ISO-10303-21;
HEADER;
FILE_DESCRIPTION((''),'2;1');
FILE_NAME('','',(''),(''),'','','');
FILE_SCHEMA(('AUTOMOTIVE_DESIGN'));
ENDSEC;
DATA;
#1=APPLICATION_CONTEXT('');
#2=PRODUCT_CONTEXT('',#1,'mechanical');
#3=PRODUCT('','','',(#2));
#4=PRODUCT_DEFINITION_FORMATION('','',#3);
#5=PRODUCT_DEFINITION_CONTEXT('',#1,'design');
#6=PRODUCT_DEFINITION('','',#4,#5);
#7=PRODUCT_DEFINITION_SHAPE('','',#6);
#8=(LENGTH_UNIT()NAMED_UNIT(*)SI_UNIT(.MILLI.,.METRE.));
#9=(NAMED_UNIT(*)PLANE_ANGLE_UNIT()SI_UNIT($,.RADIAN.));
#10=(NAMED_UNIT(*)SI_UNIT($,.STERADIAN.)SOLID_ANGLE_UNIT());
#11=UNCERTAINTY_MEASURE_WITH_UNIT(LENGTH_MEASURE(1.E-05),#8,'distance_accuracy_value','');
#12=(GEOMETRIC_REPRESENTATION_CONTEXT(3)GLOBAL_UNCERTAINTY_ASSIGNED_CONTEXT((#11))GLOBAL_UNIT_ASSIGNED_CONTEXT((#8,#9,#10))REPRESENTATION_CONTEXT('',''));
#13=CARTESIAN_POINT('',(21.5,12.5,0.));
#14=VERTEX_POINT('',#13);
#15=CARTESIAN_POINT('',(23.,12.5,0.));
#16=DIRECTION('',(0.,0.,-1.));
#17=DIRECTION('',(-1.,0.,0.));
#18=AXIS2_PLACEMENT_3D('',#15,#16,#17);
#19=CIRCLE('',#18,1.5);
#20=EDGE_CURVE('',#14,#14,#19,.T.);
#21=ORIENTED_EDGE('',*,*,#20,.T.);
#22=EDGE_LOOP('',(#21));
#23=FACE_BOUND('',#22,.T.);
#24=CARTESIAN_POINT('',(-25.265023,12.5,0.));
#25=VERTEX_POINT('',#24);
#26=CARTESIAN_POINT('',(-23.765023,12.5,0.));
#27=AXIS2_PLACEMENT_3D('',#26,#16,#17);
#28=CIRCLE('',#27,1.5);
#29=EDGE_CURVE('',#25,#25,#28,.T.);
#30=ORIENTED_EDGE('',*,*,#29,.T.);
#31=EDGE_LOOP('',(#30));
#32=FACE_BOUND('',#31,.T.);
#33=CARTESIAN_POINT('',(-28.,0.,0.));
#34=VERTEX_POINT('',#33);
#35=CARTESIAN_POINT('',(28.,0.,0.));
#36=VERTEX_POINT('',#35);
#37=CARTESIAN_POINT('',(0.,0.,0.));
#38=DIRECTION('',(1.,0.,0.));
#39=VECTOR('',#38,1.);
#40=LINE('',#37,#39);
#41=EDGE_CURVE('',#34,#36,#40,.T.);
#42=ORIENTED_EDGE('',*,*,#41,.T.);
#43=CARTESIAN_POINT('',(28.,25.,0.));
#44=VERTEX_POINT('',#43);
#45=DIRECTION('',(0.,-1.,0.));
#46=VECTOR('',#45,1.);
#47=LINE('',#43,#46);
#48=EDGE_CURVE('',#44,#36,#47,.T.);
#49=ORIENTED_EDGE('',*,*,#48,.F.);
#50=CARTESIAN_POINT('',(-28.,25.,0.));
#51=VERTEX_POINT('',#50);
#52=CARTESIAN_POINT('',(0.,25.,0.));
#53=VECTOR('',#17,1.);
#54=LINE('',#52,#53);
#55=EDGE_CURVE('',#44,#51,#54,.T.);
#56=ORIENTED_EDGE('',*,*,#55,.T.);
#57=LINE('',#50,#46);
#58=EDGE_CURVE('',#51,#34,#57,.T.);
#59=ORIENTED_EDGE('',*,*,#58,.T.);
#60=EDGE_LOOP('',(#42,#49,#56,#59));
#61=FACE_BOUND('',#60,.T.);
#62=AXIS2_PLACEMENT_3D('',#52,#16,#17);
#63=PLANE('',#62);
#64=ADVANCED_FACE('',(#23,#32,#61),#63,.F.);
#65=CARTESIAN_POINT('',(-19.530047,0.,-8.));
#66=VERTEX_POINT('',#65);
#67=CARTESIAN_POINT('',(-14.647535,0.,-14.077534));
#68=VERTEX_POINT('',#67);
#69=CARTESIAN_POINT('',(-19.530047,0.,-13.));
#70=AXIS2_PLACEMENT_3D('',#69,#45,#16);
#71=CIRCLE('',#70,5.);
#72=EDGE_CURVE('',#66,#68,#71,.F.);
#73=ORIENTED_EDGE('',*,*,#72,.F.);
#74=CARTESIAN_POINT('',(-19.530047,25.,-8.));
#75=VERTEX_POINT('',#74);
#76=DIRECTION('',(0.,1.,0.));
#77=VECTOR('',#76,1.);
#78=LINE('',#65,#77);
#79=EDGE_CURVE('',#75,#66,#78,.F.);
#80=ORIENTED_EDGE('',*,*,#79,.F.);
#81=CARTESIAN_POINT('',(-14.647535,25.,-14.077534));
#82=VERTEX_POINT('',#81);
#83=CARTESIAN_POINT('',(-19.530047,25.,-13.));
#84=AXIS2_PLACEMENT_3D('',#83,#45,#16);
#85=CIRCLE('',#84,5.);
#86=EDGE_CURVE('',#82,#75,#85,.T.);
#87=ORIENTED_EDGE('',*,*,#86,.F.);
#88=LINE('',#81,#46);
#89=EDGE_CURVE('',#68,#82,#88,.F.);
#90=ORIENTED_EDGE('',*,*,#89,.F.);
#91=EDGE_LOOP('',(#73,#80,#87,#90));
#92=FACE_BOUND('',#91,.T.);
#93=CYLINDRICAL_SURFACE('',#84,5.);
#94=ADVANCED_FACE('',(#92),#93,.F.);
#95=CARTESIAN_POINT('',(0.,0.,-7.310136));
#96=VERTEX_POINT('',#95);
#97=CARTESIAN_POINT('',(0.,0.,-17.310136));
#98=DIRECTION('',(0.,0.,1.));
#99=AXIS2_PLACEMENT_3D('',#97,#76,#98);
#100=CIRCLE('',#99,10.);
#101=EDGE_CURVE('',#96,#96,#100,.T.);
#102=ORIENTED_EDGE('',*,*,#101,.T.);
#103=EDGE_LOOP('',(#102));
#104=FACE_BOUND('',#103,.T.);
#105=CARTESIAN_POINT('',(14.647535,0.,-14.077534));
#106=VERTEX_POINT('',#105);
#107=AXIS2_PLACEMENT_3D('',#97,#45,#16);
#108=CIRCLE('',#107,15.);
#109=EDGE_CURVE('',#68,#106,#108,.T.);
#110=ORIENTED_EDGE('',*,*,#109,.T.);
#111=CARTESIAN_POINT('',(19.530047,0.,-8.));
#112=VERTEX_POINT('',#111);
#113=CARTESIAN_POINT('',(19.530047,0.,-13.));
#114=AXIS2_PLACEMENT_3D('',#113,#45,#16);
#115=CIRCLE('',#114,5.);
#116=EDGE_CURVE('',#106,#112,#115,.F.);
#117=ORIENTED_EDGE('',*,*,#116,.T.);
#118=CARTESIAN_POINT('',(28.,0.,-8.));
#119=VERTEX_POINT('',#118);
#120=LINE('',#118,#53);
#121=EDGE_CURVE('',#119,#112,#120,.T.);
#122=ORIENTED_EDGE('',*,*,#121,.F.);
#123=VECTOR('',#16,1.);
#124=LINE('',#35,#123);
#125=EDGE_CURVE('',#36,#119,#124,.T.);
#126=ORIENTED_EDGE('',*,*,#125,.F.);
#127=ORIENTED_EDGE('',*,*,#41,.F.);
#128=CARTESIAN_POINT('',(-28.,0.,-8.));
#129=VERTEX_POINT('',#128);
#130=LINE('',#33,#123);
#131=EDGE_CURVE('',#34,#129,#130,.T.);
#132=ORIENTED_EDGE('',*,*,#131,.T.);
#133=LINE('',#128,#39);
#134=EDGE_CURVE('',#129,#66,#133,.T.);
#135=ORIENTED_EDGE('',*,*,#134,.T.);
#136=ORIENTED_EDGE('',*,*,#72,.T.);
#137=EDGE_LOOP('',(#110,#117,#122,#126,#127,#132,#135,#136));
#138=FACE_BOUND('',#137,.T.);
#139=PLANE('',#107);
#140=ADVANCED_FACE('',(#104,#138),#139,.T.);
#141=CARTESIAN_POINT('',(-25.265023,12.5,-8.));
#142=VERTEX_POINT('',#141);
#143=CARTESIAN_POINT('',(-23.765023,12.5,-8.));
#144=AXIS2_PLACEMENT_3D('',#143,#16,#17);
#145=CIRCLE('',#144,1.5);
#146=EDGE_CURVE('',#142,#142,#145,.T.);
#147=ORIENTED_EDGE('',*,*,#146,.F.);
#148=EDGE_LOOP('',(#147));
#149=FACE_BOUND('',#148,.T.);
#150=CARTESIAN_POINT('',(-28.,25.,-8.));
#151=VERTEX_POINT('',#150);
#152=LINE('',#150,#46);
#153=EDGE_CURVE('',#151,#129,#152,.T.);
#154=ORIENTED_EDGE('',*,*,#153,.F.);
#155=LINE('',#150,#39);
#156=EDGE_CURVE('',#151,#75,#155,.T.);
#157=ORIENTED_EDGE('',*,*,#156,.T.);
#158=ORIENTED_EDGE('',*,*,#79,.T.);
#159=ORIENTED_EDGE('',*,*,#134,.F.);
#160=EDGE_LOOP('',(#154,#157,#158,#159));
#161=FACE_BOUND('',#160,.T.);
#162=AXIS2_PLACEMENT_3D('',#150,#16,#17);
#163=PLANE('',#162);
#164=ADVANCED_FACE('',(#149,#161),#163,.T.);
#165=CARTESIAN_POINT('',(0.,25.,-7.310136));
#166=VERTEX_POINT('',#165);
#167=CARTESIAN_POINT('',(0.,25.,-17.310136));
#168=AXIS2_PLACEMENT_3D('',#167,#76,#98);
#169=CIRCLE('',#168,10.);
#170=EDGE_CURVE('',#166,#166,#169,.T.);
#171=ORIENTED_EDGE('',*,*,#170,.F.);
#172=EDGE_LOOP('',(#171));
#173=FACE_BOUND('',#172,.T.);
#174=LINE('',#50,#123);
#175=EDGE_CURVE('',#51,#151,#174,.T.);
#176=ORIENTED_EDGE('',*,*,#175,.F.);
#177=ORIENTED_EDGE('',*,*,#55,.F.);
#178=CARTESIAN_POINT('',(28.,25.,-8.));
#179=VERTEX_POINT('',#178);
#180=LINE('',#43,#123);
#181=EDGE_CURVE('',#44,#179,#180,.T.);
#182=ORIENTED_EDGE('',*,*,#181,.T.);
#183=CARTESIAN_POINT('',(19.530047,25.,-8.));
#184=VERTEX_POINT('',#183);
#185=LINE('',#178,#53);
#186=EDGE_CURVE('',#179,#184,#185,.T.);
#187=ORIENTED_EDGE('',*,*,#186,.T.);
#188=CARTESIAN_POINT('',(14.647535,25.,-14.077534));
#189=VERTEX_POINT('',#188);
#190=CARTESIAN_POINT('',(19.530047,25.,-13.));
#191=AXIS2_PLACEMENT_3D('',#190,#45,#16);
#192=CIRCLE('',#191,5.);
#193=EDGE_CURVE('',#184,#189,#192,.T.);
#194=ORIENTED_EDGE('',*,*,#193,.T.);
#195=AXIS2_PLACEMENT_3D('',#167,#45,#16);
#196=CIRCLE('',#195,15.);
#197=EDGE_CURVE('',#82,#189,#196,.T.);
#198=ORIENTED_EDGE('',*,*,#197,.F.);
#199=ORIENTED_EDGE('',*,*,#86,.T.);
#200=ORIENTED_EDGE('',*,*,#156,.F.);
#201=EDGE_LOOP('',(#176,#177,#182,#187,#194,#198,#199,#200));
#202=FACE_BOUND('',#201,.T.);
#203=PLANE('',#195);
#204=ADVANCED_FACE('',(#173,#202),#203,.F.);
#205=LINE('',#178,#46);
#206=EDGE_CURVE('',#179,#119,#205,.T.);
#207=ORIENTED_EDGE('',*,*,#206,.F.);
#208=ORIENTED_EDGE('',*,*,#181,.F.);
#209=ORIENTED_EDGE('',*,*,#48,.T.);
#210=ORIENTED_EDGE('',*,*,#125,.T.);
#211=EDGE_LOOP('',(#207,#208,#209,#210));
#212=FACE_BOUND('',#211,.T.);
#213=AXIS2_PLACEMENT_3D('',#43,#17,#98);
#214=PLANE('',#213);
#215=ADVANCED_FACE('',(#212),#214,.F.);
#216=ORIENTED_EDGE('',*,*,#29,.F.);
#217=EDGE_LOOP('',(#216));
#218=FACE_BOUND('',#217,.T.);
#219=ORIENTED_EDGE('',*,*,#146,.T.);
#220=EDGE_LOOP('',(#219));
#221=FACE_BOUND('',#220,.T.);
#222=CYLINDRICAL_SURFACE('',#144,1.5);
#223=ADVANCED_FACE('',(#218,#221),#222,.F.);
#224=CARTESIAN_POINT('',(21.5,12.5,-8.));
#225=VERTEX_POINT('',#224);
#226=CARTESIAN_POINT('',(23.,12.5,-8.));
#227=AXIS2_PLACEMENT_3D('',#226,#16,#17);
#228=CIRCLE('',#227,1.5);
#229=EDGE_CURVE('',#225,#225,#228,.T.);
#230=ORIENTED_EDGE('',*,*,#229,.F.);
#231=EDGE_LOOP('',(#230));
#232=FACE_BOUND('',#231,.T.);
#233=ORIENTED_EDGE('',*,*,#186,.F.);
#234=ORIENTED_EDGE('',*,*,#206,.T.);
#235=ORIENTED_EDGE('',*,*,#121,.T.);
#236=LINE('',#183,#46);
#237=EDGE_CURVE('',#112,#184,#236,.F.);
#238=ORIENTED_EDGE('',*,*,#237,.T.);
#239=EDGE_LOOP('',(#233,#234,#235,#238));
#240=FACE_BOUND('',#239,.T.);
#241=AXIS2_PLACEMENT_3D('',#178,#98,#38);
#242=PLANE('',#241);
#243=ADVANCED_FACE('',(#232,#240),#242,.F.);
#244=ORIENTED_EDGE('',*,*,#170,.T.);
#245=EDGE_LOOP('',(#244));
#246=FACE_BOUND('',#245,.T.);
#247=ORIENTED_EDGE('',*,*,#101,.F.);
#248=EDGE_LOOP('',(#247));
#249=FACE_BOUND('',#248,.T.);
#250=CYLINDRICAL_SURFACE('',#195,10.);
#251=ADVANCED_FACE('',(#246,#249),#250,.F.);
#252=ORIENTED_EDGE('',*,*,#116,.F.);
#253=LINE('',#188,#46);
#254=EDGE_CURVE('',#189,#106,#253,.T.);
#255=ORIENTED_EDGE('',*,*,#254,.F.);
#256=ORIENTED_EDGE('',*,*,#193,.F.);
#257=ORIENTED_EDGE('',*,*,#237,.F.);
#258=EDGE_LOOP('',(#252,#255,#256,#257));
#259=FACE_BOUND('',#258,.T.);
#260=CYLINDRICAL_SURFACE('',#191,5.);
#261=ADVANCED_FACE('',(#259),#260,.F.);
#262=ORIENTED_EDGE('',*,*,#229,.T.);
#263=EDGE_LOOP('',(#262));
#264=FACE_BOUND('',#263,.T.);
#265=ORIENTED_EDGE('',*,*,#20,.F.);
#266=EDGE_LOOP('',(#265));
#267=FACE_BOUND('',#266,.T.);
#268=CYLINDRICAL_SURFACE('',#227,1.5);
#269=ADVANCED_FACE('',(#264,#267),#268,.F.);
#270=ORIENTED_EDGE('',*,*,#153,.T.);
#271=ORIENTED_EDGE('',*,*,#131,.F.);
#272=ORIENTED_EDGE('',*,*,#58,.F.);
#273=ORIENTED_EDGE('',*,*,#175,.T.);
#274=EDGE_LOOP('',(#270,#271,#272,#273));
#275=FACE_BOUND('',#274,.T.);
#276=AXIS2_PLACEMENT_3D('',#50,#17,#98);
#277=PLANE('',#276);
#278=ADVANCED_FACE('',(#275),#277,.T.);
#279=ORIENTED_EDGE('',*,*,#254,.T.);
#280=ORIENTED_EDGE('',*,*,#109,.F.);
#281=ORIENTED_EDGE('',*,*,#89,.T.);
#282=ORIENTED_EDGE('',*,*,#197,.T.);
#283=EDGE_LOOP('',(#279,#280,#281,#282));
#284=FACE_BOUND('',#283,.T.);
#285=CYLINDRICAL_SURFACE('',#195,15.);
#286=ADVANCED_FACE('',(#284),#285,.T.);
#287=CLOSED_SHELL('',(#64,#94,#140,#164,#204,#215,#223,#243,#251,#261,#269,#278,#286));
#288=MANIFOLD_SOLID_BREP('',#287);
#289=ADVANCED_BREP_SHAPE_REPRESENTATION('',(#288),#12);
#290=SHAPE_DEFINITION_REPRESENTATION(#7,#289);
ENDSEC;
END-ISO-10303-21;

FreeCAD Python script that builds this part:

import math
import FreeCAD as App
import Part
import Sketcher
from FreeCAD import Vector


def edges_at(feature, points):
    """Names of the edges that pass closest to the given points."""
    edges = feature.Shape.Edges
    near = lambda p: min(range(len(edges)), key=lambda i: edges[i].distToShape(Part.Vertex(*p))[0])
    return sorted({f"Edge{near(p) + 1}" for p in points})

doc = App.newDocument("Part")
body = doc.addObject("PartDesign::Body", "Body")

sketch1 = body.newObject("Sketcher::SketchObject", "Sketch")
sketch1.AttachmentSupport = (doc.getObject("XZ_Plane"), [""])
sketch1.MapMode = "FlatFace"
sketch1.addGeometry(Part.LineSegment(Vector(-28, -8, 0), Vector(-28, 0, 0)), False)
sketch1.addGeometry(Part.LineSegment(Vector(-28, 0, 0), Vector(28, 0, 0)), False)
sketch1.addGeometry(Part.LineSegment(Vector(28, 0, 0), Vector(28, -8, 0)), False)
sketch1.addGeometry(Part.LineSegment(Vector(28, -8, 0), Vector(11.76101, -8, 0)), False)
sketch1.addGeometry(Part.ArcOfCircle(Part.Circle(Vector(0, -17.310136, 0), Vector(0, 0, 1), 15), math.radians(141.634502), math.radians(398.365498)), False)
sketch1.addGeometry(Part.LineSegment(Vector(-11.76101, -8, 0), Vector(-28, -8, 0)), False)
sketch1.addGeometry(Part.Circle(Vector(0, -17.310136, 0), Vector(0, 0, 1), 10), False)
sketch1.addConstraint(Sketcher.Constraint("Coincident", 0, 2, 1, 1))
sketch1.addConstraint(Sketcher.Constraint("Coincident", 1, 2, 2, 1))
sketch1.addConstraint(Sketcher.Constraint("Coincident", 2, 2, 3, 1))
sketch1.addConstraint(Sketcher.Constraint("Coincident", 3, 2, 4, 2))
sketch1.addConstraint(Sketcher.Constraint("Coincident", 4, 1, 5, 1))
sketch1.addConstraint(Sketcher.Constraint("Coincident", 5, 2, 0, 1))
sketch1.addConstraint(Sketcher.Constraint("Vertical", 0))
sketch1.addConstraint(Sketcher.Constraint("Horizontal", 1))
sketch1.addConstraint(Sketcher.Constraint("Vertical", 2))
sketch1.addConstraint(Sketcher.Constraint("Horizontal", 3))
sketch1.addConstraint(Sketcher.Constraint("Horizontal", 5))
sketch1.addConstraint(Sketcher.Constraint("Coincident", 6, 3, 4, 3))
sketch1.addConstraint(Sketcher.Constraint("Symmetric", 0, 2, 1, 2, -1, 1))
sketch1.addConstraint(Sketcher.Constraint("Symmetric", 3, 2, 4, 1, -2))
sketch1.addConstraint(Sketcher.Constraint("Diameter", 6, 20.0))
sketch1.addConstraint(Sketcher.Constraint("Radius", 4, 15.0))
sketch1.addConstraint(Sketcher.Constraint("DistanceX", 1, 1, 1, 2, 56.0))
sketch1.addConstraint(Sketcher.Constraint("DistanceY", 0, 1, 0, 2, 8.0))
sketch1.addConstraint(Sketcher.Constraint("DistanceX", 3, 2, 3, 1, 16.23899))
pad1 = body.newObject("PartDesign::Pad", "Pad")
pad1.Profile = sketch1
pad1.Length = 25
pad1.Reversed = True
doc.recompute()

fillet = body.newObject("PartDesign::Fillet", "Fillet")
fillet.Base = (pad1, edges_at(pad1, [(11.761, 12.5, -8)]))
fillet.Radius = 5
doc.recompute()

fillet2 = body.newObject("PartDesign::Fillet", "Fillet001")
fillet2.Base = (fillet, edges_at(fillet, [(-11.761, 12.5, -8)]))
fillet2.Radius = 5

sketch2 = body.newObject("Sketcher::SketchObject", "Sketch001")
sketch2.AttachmentSupport = (doc.getObject("XY_Plane"), [""])
sketch2.MapMode = "FlatFace"
sketch2.AttachmentOffset = App.Placement(Vector(0, 0, -8), App.Rotation())
sketch2.addGeometry(Part.Circle(Vector(23, 12.5, 0), Vector(0, 0, 1), 1.5), False)
sketch2.addGeometry(Part.Circle(Vector(-23.765023, 12.5, 0), Vector(0, 0, 1), 1.5), False)
sketch2.addConstraint(Sketcher.Constraint("Equal", 0, 1))
sketch2.addConstraint(Sketcher.Constraint("Horizontal", 0, 3, 1, 3))
sketch2.addConstraint(Sketcher.Constraint("Diameter", 0, 3.0))
sketch2.addConstraint(Sketcher.Constraint("DistanceX", -1, 1, 0, 3, 23.0))
sketch2.addConstraint(Sketcher.Constraint("DistanceY", -1, 1, 0, 3, 12.5))
sketch2.addConstraint(Sketcher.Constraint("DistanceX", 1, 3, -1, 1, 23.765023))
doc.recompute()
hole = body.newObject("PartDesign::Hole", "Hole")
hole.Profile = sketch2
hole.ThreadType = "None"
hole.Diameter = 3
hole.DepthType = "Dimension"
hole.Depth = 12.4
hole.DrillPoint = "Angled"
hole.DrillPointAngle = 118
hole.Reversed = True

doc.recompute()
